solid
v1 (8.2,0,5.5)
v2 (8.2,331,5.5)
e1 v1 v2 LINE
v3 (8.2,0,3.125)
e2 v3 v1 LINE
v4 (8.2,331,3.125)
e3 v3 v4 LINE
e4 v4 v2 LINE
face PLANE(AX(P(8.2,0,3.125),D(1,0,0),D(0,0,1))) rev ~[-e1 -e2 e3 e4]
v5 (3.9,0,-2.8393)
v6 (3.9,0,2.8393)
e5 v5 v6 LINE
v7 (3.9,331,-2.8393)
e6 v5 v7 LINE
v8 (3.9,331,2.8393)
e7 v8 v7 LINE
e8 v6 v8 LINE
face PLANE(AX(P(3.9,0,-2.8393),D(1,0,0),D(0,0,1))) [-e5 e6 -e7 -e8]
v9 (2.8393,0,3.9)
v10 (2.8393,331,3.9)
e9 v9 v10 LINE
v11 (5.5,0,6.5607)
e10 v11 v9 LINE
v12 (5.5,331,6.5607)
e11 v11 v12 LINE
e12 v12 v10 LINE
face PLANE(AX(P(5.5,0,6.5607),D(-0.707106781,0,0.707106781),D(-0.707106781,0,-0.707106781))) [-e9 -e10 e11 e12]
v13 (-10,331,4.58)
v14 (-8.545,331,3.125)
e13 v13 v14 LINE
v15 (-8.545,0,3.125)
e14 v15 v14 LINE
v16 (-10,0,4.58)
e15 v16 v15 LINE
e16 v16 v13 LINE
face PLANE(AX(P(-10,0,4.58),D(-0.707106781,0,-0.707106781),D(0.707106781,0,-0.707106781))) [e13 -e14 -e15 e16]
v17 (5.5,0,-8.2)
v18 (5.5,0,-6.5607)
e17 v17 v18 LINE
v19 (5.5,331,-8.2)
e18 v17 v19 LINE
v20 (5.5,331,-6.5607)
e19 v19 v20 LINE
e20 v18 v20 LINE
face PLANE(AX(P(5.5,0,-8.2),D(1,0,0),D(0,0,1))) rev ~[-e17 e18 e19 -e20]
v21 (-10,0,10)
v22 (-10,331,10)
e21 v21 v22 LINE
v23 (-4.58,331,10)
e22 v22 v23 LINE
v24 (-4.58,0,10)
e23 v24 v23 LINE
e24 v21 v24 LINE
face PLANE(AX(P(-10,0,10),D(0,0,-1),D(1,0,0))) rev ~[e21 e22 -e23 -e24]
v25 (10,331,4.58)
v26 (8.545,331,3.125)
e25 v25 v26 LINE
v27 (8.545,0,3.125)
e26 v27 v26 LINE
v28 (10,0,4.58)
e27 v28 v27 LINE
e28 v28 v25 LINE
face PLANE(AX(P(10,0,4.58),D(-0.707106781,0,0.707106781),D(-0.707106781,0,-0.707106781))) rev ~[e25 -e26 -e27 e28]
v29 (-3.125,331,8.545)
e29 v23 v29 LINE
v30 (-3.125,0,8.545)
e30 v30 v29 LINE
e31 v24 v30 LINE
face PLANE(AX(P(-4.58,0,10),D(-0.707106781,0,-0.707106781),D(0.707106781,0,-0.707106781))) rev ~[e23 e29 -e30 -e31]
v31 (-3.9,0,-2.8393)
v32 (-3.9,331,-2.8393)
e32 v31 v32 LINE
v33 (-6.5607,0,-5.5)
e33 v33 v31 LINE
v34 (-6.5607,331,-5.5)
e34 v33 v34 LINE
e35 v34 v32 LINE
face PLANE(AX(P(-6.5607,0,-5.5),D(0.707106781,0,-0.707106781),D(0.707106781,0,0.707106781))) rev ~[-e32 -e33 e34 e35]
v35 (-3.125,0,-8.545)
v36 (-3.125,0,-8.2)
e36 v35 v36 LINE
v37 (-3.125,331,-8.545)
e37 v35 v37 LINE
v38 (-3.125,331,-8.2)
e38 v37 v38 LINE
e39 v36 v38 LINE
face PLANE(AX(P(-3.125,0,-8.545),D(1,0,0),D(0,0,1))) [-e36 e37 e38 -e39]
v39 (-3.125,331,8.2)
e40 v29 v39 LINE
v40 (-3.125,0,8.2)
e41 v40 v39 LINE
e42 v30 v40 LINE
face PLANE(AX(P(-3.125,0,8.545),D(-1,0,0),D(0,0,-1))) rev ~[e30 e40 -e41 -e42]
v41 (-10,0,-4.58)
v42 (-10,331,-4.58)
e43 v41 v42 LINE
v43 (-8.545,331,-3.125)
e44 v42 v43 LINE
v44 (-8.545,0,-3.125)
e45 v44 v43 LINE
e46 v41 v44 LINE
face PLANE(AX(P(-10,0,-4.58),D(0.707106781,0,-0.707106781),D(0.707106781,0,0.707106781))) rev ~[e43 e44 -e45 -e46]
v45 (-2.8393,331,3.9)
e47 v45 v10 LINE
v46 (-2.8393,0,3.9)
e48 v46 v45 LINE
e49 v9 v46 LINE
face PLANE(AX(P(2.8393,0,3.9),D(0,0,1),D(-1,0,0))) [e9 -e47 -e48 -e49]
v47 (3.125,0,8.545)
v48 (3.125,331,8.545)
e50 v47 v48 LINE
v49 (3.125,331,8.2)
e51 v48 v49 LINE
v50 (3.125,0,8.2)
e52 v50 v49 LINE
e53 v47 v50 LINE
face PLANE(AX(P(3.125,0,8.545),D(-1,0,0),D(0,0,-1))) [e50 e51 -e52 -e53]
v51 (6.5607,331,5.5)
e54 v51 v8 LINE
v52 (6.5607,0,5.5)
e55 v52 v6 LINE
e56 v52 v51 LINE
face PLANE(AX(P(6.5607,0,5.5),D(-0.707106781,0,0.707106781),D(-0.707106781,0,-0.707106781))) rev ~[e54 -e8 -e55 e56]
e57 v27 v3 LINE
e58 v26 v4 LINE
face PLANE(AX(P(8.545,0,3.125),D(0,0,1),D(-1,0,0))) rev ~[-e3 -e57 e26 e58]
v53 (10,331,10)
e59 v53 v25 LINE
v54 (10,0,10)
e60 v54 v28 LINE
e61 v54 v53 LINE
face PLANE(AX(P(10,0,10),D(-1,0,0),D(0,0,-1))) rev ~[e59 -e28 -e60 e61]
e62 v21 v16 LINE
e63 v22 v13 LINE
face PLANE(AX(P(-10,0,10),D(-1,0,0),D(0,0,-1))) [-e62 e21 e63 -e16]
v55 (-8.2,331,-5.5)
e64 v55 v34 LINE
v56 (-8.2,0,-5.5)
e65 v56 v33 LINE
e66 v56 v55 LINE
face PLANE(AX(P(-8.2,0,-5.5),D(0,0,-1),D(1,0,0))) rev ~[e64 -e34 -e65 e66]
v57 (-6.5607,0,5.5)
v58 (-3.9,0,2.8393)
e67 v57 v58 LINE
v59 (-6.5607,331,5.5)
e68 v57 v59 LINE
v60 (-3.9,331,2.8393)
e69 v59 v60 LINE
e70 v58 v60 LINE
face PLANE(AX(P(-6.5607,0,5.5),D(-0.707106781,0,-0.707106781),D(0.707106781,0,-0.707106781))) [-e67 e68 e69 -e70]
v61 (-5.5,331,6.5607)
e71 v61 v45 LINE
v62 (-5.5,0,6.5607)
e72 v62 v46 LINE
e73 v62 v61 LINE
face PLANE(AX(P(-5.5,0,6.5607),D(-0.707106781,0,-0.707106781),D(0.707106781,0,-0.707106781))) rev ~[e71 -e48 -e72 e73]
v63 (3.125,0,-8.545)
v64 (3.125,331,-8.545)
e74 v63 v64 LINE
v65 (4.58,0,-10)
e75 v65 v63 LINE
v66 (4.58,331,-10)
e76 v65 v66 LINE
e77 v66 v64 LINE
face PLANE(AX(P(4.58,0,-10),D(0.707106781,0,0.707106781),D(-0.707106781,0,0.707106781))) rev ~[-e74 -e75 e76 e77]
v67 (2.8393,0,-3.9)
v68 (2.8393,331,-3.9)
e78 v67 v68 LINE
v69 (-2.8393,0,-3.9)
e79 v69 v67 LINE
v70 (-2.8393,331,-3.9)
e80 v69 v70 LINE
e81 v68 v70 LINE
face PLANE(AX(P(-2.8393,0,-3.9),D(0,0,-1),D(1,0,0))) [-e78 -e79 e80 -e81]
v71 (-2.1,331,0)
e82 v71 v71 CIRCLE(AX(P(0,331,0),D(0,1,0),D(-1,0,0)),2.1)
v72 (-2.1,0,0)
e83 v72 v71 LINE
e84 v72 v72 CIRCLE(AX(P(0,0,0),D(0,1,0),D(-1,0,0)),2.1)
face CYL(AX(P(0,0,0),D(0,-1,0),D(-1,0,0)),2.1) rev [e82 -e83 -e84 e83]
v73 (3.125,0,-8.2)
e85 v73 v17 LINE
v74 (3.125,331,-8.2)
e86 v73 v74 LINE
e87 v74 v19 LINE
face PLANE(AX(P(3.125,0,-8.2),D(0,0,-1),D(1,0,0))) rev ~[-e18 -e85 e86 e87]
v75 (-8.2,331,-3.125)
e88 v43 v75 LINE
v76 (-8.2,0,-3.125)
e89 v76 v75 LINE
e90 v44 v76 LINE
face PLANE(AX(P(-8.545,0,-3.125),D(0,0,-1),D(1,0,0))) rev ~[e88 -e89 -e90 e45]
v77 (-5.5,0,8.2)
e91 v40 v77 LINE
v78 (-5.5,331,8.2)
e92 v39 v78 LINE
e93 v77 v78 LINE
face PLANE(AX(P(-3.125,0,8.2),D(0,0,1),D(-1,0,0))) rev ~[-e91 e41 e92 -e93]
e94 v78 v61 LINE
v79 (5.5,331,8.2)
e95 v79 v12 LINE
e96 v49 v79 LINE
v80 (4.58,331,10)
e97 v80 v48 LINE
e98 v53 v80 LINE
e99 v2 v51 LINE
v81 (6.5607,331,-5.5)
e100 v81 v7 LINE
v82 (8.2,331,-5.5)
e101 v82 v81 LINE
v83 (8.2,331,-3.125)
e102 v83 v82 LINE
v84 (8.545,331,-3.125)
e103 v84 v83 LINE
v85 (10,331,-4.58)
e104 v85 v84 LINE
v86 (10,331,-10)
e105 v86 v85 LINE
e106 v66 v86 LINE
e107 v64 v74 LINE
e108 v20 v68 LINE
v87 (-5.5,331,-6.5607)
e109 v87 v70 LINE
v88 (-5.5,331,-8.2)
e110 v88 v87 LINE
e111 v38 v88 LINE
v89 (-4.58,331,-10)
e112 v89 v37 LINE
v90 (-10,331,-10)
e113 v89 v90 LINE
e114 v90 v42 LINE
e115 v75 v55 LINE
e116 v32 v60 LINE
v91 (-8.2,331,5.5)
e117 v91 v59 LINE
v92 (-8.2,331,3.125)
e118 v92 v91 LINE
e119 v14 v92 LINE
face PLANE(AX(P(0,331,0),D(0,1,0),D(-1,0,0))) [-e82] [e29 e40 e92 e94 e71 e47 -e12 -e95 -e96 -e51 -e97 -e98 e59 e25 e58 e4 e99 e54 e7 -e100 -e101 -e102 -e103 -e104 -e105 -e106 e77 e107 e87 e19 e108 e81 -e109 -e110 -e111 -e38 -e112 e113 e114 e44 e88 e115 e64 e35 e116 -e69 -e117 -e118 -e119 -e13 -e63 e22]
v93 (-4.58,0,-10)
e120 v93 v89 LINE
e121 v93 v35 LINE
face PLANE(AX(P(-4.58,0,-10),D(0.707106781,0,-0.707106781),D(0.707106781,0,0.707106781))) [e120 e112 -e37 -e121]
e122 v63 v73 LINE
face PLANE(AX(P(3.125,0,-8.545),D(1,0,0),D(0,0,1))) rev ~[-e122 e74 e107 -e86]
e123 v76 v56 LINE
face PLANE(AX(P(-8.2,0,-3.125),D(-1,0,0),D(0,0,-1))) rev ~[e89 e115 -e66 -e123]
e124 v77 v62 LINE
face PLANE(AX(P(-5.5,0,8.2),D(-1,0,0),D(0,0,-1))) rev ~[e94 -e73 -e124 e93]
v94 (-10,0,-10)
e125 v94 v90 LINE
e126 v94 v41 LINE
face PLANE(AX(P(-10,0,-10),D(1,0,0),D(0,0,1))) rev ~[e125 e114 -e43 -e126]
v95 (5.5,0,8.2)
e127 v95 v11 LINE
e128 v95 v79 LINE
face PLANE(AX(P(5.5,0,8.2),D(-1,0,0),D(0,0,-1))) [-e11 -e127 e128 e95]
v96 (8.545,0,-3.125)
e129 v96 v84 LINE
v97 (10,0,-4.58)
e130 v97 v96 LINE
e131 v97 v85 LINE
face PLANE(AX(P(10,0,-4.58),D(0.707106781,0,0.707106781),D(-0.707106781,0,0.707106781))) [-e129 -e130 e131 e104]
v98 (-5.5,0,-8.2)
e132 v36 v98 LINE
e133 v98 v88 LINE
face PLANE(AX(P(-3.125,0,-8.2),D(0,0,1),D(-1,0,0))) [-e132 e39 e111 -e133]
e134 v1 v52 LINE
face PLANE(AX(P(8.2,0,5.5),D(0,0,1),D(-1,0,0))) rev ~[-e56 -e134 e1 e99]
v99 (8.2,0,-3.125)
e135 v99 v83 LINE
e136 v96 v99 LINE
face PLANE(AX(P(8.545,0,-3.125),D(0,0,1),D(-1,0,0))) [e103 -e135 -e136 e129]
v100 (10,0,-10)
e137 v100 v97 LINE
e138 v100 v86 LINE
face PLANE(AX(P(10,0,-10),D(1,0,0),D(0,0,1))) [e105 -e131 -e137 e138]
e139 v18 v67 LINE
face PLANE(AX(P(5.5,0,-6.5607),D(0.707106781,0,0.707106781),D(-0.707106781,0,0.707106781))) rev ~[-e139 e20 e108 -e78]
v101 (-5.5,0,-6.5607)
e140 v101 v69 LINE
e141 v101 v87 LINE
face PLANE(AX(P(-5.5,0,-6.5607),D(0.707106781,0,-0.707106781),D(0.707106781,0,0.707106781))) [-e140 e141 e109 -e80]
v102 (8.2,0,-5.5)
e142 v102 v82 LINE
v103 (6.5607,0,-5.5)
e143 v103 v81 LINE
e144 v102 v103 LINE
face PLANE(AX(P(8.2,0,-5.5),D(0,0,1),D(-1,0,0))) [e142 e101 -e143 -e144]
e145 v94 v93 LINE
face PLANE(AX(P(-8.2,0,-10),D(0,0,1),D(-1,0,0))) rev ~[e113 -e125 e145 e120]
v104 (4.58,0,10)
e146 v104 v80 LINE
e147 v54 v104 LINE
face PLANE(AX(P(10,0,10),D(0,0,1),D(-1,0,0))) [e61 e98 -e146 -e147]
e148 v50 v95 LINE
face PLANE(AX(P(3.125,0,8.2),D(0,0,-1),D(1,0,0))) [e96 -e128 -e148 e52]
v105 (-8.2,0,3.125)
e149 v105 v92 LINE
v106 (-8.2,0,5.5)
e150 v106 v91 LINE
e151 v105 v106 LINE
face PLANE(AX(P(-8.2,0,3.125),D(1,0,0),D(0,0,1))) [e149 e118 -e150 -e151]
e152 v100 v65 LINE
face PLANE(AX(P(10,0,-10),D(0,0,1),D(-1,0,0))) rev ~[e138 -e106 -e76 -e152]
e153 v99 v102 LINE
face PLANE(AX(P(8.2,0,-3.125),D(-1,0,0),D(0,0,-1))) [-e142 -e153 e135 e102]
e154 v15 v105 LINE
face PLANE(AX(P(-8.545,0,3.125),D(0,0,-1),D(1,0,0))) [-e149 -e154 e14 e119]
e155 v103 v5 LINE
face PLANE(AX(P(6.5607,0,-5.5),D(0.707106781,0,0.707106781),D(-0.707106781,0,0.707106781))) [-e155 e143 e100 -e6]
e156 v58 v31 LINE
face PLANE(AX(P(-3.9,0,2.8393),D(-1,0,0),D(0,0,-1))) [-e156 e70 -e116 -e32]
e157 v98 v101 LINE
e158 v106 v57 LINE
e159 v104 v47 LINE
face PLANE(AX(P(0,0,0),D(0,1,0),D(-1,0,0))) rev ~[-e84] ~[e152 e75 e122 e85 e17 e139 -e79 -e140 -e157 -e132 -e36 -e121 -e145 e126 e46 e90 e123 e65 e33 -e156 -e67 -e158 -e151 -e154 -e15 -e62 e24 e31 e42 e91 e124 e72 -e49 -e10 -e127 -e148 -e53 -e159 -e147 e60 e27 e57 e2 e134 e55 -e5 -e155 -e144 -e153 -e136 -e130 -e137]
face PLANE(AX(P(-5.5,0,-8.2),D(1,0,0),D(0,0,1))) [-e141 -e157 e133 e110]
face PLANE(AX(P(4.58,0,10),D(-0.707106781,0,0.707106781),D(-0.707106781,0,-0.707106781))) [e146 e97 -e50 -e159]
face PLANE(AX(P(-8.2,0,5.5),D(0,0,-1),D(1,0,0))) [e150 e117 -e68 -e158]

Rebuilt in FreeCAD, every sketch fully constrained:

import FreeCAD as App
import Part
import Sketcher

V = App.Vector

doc = App.newDocument("Part")
body = doc.addObject("PartDesign::Body", "Body")

# Sketch on XZ plane
sketch1 = body.newObject("Sketcher::SketchObject", "Sketch")
sketch1.AttachmentSupport = (doc.getObject("XZ_Plane"), [""])
sketch1.MapMode = "FlatFace"
sketch1.addGeometry([
    Part.LineSegment(V(10, -4.58, 0), V(10, -10, 0)),  # 0
    Part.LineSegment(V(10, -10, 0), V(4.58, -10, 0)),  # 1
    Part.LineSegment(V(4.58, -10, 0), V(3.12, -8.54, 0)),  # 2
    Part.LineSegment(V(3.12, -8.54, 0), V(3.12, -8.2, 0)),  # 3
    Part.LineSegment(V(3.12, -8.2, 0), V(5.5, -8.2, 0)),  # 4
    Part.LineSegment(V(5.5, -8.2, 0), V(5.5, -6.56, 0)),  # 5
    Part.LineSegment(V(5.5, -6.56, 0), V(2.84, -3.9, 0)),  # 6
    Part.LineSegment(V(2.84, -3.9, 0), V(-2.84, -3.9, 0)),  # 7
    Part.LineSegment(V(-2.84, -3.9, 0), V(-5.5, -6.56, 0)),  # 8
    Part.LineSegment(V(-5.5, -6.56, 0), V(-5.5, -8.2, 0)),  # 9
    Part.LineSegment(V(-5.5, -8.2, 0), V(-3.12, -8.2, 0)),  # 10
    Part.LineSegment(V(-3.12, -8.2, 0), V(-3.12, -8.54, 0)),  # 11
    Part.LineSegment(V(-3.12, -8.54, 0), V(-4.58, -10, 0)),  # 12
    Part.LineSegment(V(-4.58, -10, 0), V(-10, -10, 0)),  # 13
    Part.LineSegment(V(-10, -10, 0), V(-10, -4.58, 0)),  # 14
    Part.LineSegment(V(-10, -4.58, 0), V(-8.54, -3.12, 0)),  # 15
    Part.LineSegment(V(-8.54, -3.12, 0), V(-8.2, -3.12, 0)),  # 16
    Part.LineSegment(V(-8.2, -3.12, 0), V(-8.2, -5.5, 0)),  # 17
    Part.LineSegment(V(-8.2, -5.5, 0), V(-6.56, -5.5, 0)),  # 18
    Part.LineSegment(V(-6.56, -5.5, 0), V(-3.9, -2.84, 0)),  # 19
    Part.LineSegment(V(-3.9, -2.84, 0), V(-3.9, 2.84, 0)),  # 20
    Part.LineSegment(V(-3.9, 2.84, 0), V(-6.56, 5.5, 0)),  # 21
    Part.LineSegment(V(-6.56, 5.5, 0), V(-8.2, 5.5, 0)),  # 22
    Part.LineSegment(V(-8.2, 5.5, 0), V(-8.2, 3.12, 0)),  # 23
    Part.LineSegment(V(-8.2, 3.12, 0), V(-8.54, 3.12, 0)),  # 24
    Part.LineSegment(V(-8.54, 3.12, 0), V(-10, 4.58, 0)),  # 25
    Part.LineSegment(V(-10, 4.58, 0), V(-10, 10, 0)),  # 26
    Part.LineSegment(V(-10, 10, 0), V(-4.58, 10, 0)),  # 27
    Part.LineSegment(V(-4.58, 10, 0), V(-3.12, 8.54, 0)),  # 28
    Part.LineSegment(V(-3.12, 8.54, 0), V(-3.12, 8.2, 0)),  # 29
    Part.LineSegment(V(-3.12, 8.2, 0), V(-5.5, 8.2, 0)),  # 30
    Part.LineSegment(V(-5.5, 8.2, 0), V(-5.5, 6.56, 0)),  # 31
    Part.LineSegment(V(-5.5, 6.56, 0), V(-2.84, 3.9, 0)),  # 32
    Part.LineSegment(V(-2.84, 3.9, 0), V(2.84, 3.9, 0)),  # 33
    Part.LineSegment(V(2.84, 3.9, 0), V(5.5, 6.56, 0)),  # 34
    Part.LineSegment(V(5.5, 6.56, 0), V(5.5, 8.2, 0)),  # 35
    Part.LineSegment(V(5.5, 8.2, 0), V(3.12, 8.2, 0)),  # 36
    Part.LineSegment(V(3.12, 8.2, 0), V(3.12, 8.54, 0)),  # 37
    Part.LineSegment(V(3.12, 8.54, 0), V(4.58, 10, 0)),  # 38
    Part.LineSegment(V(4.58, 10, 0), V(10, 10, 0)),  # 39
    Part.LineSegment(V(10, 10, 0), V(10, 4.58, 0)),  # 40
    Part.LineSegment(V(10, 4.58, 0), V(8.54, 3.12, 0)),  # 41
    Part.LineSegment(V(8.54, 3.12, 0), V(8.2, 3.12, 0)),  # 42
    Part.LineSegment(V(8.2, 3.12, 0), V(8.2, 5.5, 0)),  # 43
    Part.LineSegment(V(8.2, 5.5, 0), V(6.56, 5.5, 0)),  # 44
    Part.LineSegment(V(6.56, 5.5, 0), V(3.9, 2.84, 0)),  # 45
    Part.LineSegment(V(3.9, 2.84, 0), V(3.9, -2.84, 0)),  # 46
    Part.LineSegment(V(3.9, -2.84, 0), V(6.56, -5.5, 0)),  # 47
    Part.LineSegment(V(6.56, -5.5, 0), V(8.2, -5.5, 0)),  # 48
    Part.LineSegment(V(8.2, -5.5, 0), V(8.2, -3.12, 0)),  # 49
    Part.LineSegment(V(8.2, -3.12, 0), V(8.54, -3.12, 0)),  # 50
    Part.LineSegment(V(8.54, -3.12, 0), V(10, -4.58, 0)),  # 51
    Part.Circle(V(0, 0, 0), V(0, 0, 1), 2.1),  # 52
], False)
sketch1.addConstraint([
    Sketcher.Constraint("Coincident", 0, 2, 1, 1),
    Sketcher.Constraint("Coincident", 1, 2, 2, 1),
    Sketcher.Constraint("Coincident", 2, 2, 3, 1),
    Sketcher.Constraint("Coincident", 3, 2, 4, 1),
    Sketcher.Constraint("Coincident", 4, 2, 5, 1),
    Sketcher.Constraint("Coincident", 5, 2, 6, 1),
    Sketcher.Constraint("Coincident", 6, 2, 7, 1),
    Sketcher.Constraint("Coincident", 7, 2, 8, 1),
    Sketcher.Constraint("Coincident", 8, 2, 9, 1),
    Sketcher.Constraint("Coincident", 9, 2, 10, 1),
    Sketcher.Constraint("Coincident", 10, 2, 11, 1),
    Sketcher.Constraint("Coincident", 11, 2, 12, 1),
    Sketcher.Constraint("Coincident", 12, 2, 13, 1),
    Sketcher.Constraint("Coincident", 13, 2, 14, 1),
    Sketcher.Constraint("Coincident", 14, 2, 15, 1),
    Sketcher.Constraint("Coincident", 15, 2, 16, 1),
    Sketcher.Constraint("Coincident", 16, 2, 17, 1),
    Sketcher.Constraint("Coincident", 17, 2, 18, 1),
    Sketcher.Constraint("Coincident", 18, 2, 19, 1),
    Sketcher.Constraint("Coincident", 19, 2, 20, 1),
    Sketcher.Constraint("Coincident", 20, 2, 21, 1),
    Sketcher.Constraint("Coincident", 21, 2, 22, 1),
    Sketcher.Constraint("Coincident", 22, 2, 23, 1),
    Sketcher.Constraint("Coincident", 23, 2, 24, 1),
    Sketcher.Constraint("Coincident", 24, 2, 25, 1),
    Sketcher.Constraint("Coincident", 25, 2, 26, 1),
    Sketcher.Constraint("Coincident", 26, 2, 27, 1),
    Sketcher.Constraint("Coincident", 27, 2, 28, 1),
    Sketcher.Constraint("Coincident", 28, 2, 29, 1),
    Sketcher.Constraint("Coincident", 29, 2, 30, 1),
    Sketcher.Constraint("Coincident", 30, 2, 31, 1),
    Sketcher.Constraint("Coincident", 31, 2, 32, 1),
    Sketcher.Constraint("Coincident", 32, 2, 33, 1),
    Sketcher.Constraint("Coincident", 33, 2, 34, 1),
    Sketcher.Constraint("Coincident", 34, 2, 35, 1),
    Sketcher.Constraint("Coincident", 35, 2, 36, 1),
    Sketcher.Constraint("Coincident", 36, 2, 37, 1),
    Sketcher.Constraint("Coincident", 37, 2, 38, 1),
    Sketcher.Constraint("Coincident", 38, 2, 39, 1),
    Sketcher.Constraint("Coincident", 39, 2, 40, 1),
    Sketcher.Constraint("Coincident", 40, 2, 41, 1),
    Sketcher.Constraint("Coincident", 41, 2, 42, 1),
    Sketcher.Constraint("Coincident", 42, 2, 43, 1),
    Sketcher.Constraint("Coincident", 43, 2, 44, 1),
    Sketcher.Constraint("Coincident", 44, 2, 45, 1),
    Sketcher.Constraint("Coincident", 45, 2, 46, 1),
    Sketcher.Constraint("Coincident", 46, 2, 47, 1),
    Sketcher.Constraint("Coincident", 47, 2, 48, 1),
    Sketcher.Constraint("Coincident", 48, 2, 49, 1),
    Sketcher.Constraint("Coincident", 49, 2, 50, 1),
    Sketcher.Constraint("Coincident", 50, 2, 51, 1),
    Sketcher.Constraint("Coincident", 51, 2, 0, 1),
    Sketcher.Constraint("Vertical", 0),
    Sketcher.Constraint("Horizontal", 1),
    Sketcher.Constraint("Vertical", 3),
    Sketcher.Constraint("Horizontal", 4),
    Sketcher.Constraint("Vertical", 5),
    Sketcher.Constraint("Horizontal", 7),
    Sketcher.Constraint("Vertical", 9),
    Sketcher.Constraint("Horizontal", 10),
    Sketcher.Constraint("Vertical", 11),
    Sketcher.Constraint("Horizontal", 13),
    Sketcher.Constraint("Vertical", 14),
    Sketcher.Constraint("Horizontal", 16),
    Sketcher.Constraint("Vertical", 17),
    Sketcher.Constraint("Horizontal", 18),
    Sketcher.Constraint("Vertical", 20),
    Sketcher.Constraint("Horizontal", 22),
    Sketcher.Constraint("Vertical", 23),
    Sketcher.Constraint("Horizontal", 24),
    Sketcher.Constraint("Vertical", 26),
    Sketcher.Constraint("Horizontal", 27),
    Sketcher.Constraint("Vertical", 29),
    Sketcher.Constraint("Horizontal", 30),
    Sketcher.Constraint("Vertical", 31),
    Sketcher.Constraint("Horizontal", 33),
    Sketcher.Constraint("Vertical", 35),
    Sketcher.Constraint("Horizontal", 36),
    Sketcher.Constraint("Vertical", 37),
    Sketcher.Constraint("Horizontal", 39),
    Sketcher.Constraint("Vertical", 40),
    Sketcher.Constraint("Horizontal", 42),
    Sketcher.Constraint("Vertical", 43),
    Sketcher.Constraint("Horizontal", 44),
    Sketcher.Constraint("Vertical", 46),
    Sketcher.Constraint("Horizontal", 48),
    Sketcher.Constraint("Vertical", 49),
    Sketcher.Constraint("Horizontal", 50),
    Sketcher.Constraint("Coincident", 52, 3, -1, 1),
    Sketcher.Constraint("Symmetric", 0, 2, 26, 2, -1, 1),
    Sketcher.Constraint("Symmetric", 2, 2, 28, 2, -1, 1),
    Sketcher.Constraint("Symmetric", 4, 2, 30, 2, -1, 1),
    Sketcher.Constraint("Symmetric", 6, 2, 32, 2, -1, 1),
    Sketcher.Constraint("Symmetric", 8, 2, 34, 2, -1, 1),
    Sketcher.Constraint("Symmetric", 10, 2, 36, 2, -1, 1),
    Sketcher.Constraint("Symmetric", 12, 2, 38, 2, -1, 1),
    Sketcher.Constraint("Symmetric", 14, 2, 40, 2, -1, 1),
    Sketcher.Constraint("Symmetric", 15, 2, 41, 2, -1, 1),
    Sketcher.Constraint("Symmetric", 17, 2, 43, 2, -1, 1),
    Sketcher.Constraint("Symmetric", 19, 2, 45, 2, -1, 1),
    Sketcher.Constraint("Symmetric", 21, 2, 47, 2, -1, 1),
    Sketcher.Constraint("Symmetric", 23, 2, 49, 2, -1, 1),
    Sketcher.Constraint("Symmetric", 5, 2, 8, 2, -2),
    Sketcher.Constraint("Symmetric", 3, 2, 10, 2, -2),
    Sketcher.Constraint("Symmetric", 1, 2, 12, 2, -2),
    Sketcher.Constraint("Symmetric", 25, 2, 40, 2, -2),
    Sketcher.Constraint("Symmetric", 24, 2, 41, 2, -2),
    Sketcher.Constraint("Symmetric", 22, 2, 43, 2, -2),
    Sketcher.Constraint("Parallel", 2, 6),
    Sketcher.Constraint("Perpendicular", 6, 8),
    Sketcher.Constraint("Parallel", 8, 12),
    Sketcher.Constraint("Parallel", 12, 15),
    Sketcher.Constraint("Parallel", 15, 19),
    Sketcher.Constraint("Perpendicular", 19, 21),
    Sketcher.Constraint("Parallel", 21, 25),
    Sketcher.Constraint("Parallel", 25, 28),
    Sketcher.Constraint("Parallel", 28, 32),
    Sketcher.Constraint("Perpendicular", 32, 34),
    Sketcher.Constraint("Parallel", 34, 38),
    Sketcher.Constraint("Parallel", 41, 45),
    Sketcher.Constraint("Perpendicular", 45, 47),
    Sketcher.Constraint("Parallel", 47, 51),
    Sketcher.Constraint("Horizontal", 20, 2, 45, 2),
    Sketcher.Constraint("Horizontal", 14, 2, 51, 2),
    Sketcher.Constraint("Equal", 39, 0),
    Sketcher.Constraint("Equal", 50, 3),
    Sketcher.Constraint("Equal", 48, 5),
    Sketcher.Constraint("Equal", 36, 17),
    Sketcher.Constraint("Equal", 33, 20),
    Sketcher.Constraint("Equal", 12, 15),
    Sketcher.Constraint("Equal", 8, 19),
    Sketcher.Constraint("Diameter", 52, 4.2),
    Sketcher.Constraint("DistanceY", 1, 2, 3, 2, 1.8),
    Sketcher.Constraint("DistanceY", 3, 2, 6, 2, 4.3),
    Sketcher.Constraint("DistanceX", 10, 2, 3, 2, 6.25),
    Sketcher.Constraint("DistanceX", -1, 1, 0, 2, 10.0),
    Sketcher.Constraint("DistanceX", 1, 2, 1, 1, 5.42),
    Sketcher.Constraint("DistanceX", -1, 1, 4, 2, 5.5),
    Sketcher.Constraint("DistanceX", 7, 2, 7, 1, 5.6786),
])
pad1 = body.newObject("PartDesign::Pad", "Pad")
pad1.Profile = sketch1
pad1.Length = 331
pad1.Reversed = True

doc.recompute()
